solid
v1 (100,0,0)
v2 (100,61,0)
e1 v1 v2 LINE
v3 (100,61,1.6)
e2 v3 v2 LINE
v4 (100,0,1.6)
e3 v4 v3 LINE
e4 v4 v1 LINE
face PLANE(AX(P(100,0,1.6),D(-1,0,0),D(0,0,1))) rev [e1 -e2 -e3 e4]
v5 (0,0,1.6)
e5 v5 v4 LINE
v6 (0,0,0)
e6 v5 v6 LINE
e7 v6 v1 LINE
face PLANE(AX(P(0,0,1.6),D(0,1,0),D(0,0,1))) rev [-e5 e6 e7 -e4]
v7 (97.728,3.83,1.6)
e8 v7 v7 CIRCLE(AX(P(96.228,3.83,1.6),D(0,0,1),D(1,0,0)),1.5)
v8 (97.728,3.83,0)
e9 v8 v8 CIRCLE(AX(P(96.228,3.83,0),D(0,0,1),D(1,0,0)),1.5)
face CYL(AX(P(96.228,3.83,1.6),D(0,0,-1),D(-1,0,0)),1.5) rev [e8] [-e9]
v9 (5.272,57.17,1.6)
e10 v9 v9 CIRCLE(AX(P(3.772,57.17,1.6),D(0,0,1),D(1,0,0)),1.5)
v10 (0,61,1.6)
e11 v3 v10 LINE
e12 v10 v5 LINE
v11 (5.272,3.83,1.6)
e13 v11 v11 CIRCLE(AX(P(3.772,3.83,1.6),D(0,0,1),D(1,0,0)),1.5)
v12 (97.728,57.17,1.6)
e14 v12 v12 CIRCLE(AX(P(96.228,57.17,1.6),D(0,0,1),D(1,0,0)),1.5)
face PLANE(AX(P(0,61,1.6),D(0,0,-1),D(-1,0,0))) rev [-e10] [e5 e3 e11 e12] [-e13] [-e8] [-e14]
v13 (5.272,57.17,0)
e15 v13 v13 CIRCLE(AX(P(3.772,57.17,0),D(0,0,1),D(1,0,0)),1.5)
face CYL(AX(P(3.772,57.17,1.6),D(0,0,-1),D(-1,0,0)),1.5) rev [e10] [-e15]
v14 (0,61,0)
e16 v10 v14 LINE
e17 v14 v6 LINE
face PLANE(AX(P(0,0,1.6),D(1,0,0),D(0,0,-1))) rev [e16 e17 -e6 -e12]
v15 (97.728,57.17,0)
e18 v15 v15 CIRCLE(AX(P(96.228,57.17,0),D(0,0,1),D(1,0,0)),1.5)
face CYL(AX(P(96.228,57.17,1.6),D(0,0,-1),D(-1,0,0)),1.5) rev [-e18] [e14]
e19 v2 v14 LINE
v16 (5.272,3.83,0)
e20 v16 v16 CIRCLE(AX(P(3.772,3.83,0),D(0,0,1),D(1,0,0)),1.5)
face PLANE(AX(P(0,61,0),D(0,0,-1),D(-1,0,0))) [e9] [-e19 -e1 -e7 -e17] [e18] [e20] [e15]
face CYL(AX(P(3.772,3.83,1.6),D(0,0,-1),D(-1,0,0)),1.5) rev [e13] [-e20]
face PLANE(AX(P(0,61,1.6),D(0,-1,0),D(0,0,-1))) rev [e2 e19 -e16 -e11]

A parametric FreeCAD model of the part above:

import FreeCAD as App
import Part
import Sketcher
from FreeCAD import Vector
Q = App.Units.Quantity


def add_polygon(sketch, points):
    """Adds a closed chain of lines whose ends are joined by coincident constraints."""
    first, n = sketch.GeometryCount, len(points)
    for a, b in zip(points, points[1:] + points[:1]):
        sketch.addGeometry(Part.LineSegment(App.Vector(*a, 0), App.Vector(*b, 0)), False)
    for i in range(n):
        sketch.addConstraint(Sketcher.Constraint("Coincident", first + i, 2, first + (i + 1) % n, 1))

doc = App.newDocument("Part")
params = doc.addObject("Spreadsheet::Sheet", "Params")
for row, (alias, value) in enumerate([
    ("sketch1_diameter", "3 mm"),
    ("sketch1_width", "100 mm"),
    ("sketch1_height", "61 mm"),
    ("pad1_length", "1.6 mm"),
], start=1):
    params.set(f"A{row}", alias)
    params.set(f"B{row}", "=" + value)
    params.setAlias(f"B{row}", alias)

body = doc.addObject("PartDesign::Body", "Body")

sketch1 = doc.addObject("Sketcher::SketchObject", "Sketch")
body.addObject(sketch1)
sketch1.AttachmentSupport = (doc.XY_Plane, [""])
sketch1.MapMode = "FlatFace"
add_polygon(sketch1, [(0, 61), (0, 0), (100, 0), (100, 61)])
sketch1.addGeometry(Part.Circle(Vector(3.772, 3.83, 0), Vector(0, 0, 1), 1.5), False)
sketch1.addGeometry(Part.Circle(Vector(96.228, 3.83, 0), Vector(0, 0, 1), 1.5), False)
sketch1.addGeometry(Part.Circle(Vector(3.772, 57.17, 0), Vector(0, 0, 1), 1.5), False)
sketch1.addGeometry(Part.Circle(Vector(96.228, 57.17, 0), Vector(0, 0, 1), 1.5), False)
sketch1.addConstraint(Sketcher.Constraint("Vertical", 0))
sketch1.addConstraint(Sketcher.Constraint("Horizontal", 1))
sketch1.addConstraint(Sketcher.Constraint("Vertical", 2))
sketch1.addConstraint(Sketcher.Constraint("Horizontal", 3))
sketch1.addConstraint(Sketcher.Constraint("Coincident", 0, 2, -1, 1))
sketch1.addConstraint(Sketcher.Constraint("Equal", 4, 5))
sketch1.addConstraint(Sketcher.Constraint("Equal", 5, 6))
sketch1.addConstraint(Sketcher.Constraint("Equal", 6, 7))
sketch1.addConstraint(Sketcher.Constraint("Horizontal", 4, 3, 5, 3))
sketch1.addConstraint(Sketcher.Constraint("Horizontal", 6, 3, 7, 3))
sketch1.addConstraint(Sketcher.Constraint("Vertical", 4, 3, 6, 3))
sketch1.addConstraint(Sketcher.Constraint("Vertical", 5, 3, 7, 3))
sketch1.addConstraint(Sketcher.Constraint("Diameter", 4, Q("3 mm")))
sketch1.addConstraint(Sketcher.Constraint("DistanceX", 1, 1, 1, 2, Q("100 mm")))
sketch1.addConstraint(Sketcher.Constraint("DistanceY", 0, 2, 0, 1, Q("61 mm")))
sketch1.addConstraint(Sketcher.Constraint("DistanceY", -1, 1, 4, 3, Q("3.83 mm")))
sketch1.addConstraint(Sketcher.Constraint("DistanceY", -1, 1, 6, 3, Q("57.17 mm")))
sketch1.addConstraint(Sketcher.Constraint("DistanceX", -1, 1, 4, 3, Q("3.772 mm")))
sketch1.addConstraint(Sketcher.Constraint("DistanceX", -1, 1, 5, 3, Q("96.228 mm")))
sketch1.setExpression("Constraints[16]", "Params.sketch1_diameter")
sketch1.setExpression("Constraints[17]", "Params.sketch1_width")
sketch1.setExpression("Constraints[18]", "Params.sketch1_height")
pad1 = doc.addObject("PartDesign::Pad", "Pad")
body.addObject(pad1)
pad1.Profile = sketch1
pad1.setExpression("Length", "Params.pad1_length")

doc.recompute()
